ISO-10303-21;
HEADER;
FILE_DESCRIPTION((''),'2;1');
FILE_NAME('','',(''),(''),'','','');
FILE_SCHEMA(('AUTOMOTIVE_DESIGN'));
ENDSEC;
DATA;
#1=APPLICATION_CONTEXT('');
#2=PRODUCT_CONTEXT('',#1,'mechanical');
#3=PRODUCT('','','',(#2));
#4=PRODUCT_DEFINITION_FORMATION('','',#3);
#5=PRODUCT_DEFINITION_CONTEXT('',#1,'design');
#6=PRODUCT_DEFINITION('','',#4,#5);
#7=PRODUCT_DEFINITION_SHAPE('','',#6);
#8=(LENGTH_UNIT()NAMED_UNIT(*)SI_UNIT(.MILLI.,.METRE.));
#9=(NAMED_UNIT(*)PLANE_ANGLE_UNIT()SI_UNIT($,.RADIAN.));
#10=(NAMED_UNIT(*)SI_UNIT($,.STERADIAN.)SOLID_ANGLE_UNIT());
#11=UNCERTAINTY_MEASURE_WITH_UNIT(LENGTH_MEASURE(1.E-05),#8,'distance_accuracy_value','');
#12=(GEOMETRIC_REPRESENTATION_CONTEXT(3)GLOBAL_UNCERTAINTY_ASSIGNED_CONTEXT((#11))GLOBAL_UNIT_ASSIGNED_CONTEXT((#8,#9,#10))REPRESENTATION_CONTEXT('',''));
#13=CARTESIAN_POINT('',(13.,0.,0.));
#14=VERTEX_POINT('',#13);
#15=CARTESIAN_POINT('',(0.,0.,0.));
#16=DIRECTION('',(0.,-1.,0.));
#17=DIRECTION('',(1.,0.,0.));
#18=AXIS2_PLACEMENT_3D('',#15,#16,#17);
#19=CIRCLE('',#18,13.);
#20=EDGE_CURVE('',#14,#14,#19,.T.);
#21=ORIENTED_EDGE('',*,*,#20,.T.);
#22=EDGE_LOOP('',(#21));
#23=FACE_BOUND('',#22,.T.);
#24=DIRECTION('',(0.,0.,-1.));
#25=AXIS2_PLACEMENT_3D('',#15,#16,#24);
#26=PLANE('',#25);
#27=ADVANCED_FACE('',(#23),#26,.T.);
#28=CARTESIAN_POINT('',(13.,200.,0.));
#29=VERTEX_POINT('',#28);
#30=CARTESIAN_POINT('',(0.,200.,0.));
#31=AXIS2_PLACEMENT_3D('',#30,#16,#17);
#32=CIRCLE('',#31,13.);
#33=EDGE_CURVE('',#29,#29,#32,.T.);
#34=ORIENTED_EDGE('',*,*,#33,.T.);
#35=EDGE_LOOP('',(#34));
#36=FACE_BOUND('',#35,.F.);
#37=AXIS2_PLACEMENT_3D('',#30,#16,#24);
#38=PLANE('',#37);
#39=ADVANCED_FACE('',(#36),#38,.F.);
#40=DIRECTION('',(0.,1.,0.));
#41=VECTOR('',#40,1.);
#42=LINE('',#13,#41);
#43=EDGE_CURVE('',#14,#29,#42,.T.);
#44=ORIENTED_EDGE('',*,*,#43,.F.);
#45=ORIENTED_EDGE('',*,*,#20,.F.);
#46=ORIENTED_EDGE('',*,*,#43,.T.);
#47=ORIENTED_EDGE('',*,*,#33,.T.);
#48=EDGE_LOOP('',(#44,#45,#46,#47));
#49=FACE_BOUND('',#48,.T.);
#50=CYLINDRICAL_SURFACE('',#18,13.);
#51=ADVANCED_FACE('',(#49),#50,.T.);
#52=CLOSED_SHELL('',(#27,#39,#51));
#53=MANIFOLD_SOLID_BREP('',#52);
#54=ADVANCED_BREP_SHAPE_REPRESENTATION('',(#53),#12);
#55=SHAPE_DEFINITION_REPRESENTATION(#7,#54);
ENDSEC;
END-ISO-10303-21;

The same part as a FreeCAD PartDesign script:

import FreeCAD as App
import Part
import Sketcher

V = App.Vector

doc = App.newDocument("Part")
params = doc.addObject("Spreadsheet::Sheet", "Params")
for row, (alias, value) in enumerate([
    ("sketch1_diameter", "26 mm"),
    ("pad1_length", "200 mm"),
], start=1):
    params.set(f"A{row}", alias)
    params.set(f"B{row}", "=" + value)
    params.setAlias(f"B{row}", alias)

body = doc.addObject("PartDesign::Body", "Body")

sketch1 = body.newObject("Sketcher::SketchObject", "Sketch")
sketch1.AttachmentSupport = (doc.getObject("XZ_Plane"), [""])
sketch1.MapMode = "FlatFace"
sketch1.addGeometry(Part.Circle(V(0, 0, 0), V(0, 0, 1), 13), False)
sketch1.addConstraint([
    Sketcher.Constraint("Coincident", 0, 3, -1, 1),
    Sketcher.Constraint("Diameter", 0, 26.0),
])
sketch1.setExpression("Constraints[1]", "Params.sketch1_diameter")
pad1 = body.newObject("PartDesign::Pad", "Pad")
pad1.Profile = sketch1
pad1.setExpression("Length", "Params.pad1_length")
pad1.Reversed = True

doc.recompute()
